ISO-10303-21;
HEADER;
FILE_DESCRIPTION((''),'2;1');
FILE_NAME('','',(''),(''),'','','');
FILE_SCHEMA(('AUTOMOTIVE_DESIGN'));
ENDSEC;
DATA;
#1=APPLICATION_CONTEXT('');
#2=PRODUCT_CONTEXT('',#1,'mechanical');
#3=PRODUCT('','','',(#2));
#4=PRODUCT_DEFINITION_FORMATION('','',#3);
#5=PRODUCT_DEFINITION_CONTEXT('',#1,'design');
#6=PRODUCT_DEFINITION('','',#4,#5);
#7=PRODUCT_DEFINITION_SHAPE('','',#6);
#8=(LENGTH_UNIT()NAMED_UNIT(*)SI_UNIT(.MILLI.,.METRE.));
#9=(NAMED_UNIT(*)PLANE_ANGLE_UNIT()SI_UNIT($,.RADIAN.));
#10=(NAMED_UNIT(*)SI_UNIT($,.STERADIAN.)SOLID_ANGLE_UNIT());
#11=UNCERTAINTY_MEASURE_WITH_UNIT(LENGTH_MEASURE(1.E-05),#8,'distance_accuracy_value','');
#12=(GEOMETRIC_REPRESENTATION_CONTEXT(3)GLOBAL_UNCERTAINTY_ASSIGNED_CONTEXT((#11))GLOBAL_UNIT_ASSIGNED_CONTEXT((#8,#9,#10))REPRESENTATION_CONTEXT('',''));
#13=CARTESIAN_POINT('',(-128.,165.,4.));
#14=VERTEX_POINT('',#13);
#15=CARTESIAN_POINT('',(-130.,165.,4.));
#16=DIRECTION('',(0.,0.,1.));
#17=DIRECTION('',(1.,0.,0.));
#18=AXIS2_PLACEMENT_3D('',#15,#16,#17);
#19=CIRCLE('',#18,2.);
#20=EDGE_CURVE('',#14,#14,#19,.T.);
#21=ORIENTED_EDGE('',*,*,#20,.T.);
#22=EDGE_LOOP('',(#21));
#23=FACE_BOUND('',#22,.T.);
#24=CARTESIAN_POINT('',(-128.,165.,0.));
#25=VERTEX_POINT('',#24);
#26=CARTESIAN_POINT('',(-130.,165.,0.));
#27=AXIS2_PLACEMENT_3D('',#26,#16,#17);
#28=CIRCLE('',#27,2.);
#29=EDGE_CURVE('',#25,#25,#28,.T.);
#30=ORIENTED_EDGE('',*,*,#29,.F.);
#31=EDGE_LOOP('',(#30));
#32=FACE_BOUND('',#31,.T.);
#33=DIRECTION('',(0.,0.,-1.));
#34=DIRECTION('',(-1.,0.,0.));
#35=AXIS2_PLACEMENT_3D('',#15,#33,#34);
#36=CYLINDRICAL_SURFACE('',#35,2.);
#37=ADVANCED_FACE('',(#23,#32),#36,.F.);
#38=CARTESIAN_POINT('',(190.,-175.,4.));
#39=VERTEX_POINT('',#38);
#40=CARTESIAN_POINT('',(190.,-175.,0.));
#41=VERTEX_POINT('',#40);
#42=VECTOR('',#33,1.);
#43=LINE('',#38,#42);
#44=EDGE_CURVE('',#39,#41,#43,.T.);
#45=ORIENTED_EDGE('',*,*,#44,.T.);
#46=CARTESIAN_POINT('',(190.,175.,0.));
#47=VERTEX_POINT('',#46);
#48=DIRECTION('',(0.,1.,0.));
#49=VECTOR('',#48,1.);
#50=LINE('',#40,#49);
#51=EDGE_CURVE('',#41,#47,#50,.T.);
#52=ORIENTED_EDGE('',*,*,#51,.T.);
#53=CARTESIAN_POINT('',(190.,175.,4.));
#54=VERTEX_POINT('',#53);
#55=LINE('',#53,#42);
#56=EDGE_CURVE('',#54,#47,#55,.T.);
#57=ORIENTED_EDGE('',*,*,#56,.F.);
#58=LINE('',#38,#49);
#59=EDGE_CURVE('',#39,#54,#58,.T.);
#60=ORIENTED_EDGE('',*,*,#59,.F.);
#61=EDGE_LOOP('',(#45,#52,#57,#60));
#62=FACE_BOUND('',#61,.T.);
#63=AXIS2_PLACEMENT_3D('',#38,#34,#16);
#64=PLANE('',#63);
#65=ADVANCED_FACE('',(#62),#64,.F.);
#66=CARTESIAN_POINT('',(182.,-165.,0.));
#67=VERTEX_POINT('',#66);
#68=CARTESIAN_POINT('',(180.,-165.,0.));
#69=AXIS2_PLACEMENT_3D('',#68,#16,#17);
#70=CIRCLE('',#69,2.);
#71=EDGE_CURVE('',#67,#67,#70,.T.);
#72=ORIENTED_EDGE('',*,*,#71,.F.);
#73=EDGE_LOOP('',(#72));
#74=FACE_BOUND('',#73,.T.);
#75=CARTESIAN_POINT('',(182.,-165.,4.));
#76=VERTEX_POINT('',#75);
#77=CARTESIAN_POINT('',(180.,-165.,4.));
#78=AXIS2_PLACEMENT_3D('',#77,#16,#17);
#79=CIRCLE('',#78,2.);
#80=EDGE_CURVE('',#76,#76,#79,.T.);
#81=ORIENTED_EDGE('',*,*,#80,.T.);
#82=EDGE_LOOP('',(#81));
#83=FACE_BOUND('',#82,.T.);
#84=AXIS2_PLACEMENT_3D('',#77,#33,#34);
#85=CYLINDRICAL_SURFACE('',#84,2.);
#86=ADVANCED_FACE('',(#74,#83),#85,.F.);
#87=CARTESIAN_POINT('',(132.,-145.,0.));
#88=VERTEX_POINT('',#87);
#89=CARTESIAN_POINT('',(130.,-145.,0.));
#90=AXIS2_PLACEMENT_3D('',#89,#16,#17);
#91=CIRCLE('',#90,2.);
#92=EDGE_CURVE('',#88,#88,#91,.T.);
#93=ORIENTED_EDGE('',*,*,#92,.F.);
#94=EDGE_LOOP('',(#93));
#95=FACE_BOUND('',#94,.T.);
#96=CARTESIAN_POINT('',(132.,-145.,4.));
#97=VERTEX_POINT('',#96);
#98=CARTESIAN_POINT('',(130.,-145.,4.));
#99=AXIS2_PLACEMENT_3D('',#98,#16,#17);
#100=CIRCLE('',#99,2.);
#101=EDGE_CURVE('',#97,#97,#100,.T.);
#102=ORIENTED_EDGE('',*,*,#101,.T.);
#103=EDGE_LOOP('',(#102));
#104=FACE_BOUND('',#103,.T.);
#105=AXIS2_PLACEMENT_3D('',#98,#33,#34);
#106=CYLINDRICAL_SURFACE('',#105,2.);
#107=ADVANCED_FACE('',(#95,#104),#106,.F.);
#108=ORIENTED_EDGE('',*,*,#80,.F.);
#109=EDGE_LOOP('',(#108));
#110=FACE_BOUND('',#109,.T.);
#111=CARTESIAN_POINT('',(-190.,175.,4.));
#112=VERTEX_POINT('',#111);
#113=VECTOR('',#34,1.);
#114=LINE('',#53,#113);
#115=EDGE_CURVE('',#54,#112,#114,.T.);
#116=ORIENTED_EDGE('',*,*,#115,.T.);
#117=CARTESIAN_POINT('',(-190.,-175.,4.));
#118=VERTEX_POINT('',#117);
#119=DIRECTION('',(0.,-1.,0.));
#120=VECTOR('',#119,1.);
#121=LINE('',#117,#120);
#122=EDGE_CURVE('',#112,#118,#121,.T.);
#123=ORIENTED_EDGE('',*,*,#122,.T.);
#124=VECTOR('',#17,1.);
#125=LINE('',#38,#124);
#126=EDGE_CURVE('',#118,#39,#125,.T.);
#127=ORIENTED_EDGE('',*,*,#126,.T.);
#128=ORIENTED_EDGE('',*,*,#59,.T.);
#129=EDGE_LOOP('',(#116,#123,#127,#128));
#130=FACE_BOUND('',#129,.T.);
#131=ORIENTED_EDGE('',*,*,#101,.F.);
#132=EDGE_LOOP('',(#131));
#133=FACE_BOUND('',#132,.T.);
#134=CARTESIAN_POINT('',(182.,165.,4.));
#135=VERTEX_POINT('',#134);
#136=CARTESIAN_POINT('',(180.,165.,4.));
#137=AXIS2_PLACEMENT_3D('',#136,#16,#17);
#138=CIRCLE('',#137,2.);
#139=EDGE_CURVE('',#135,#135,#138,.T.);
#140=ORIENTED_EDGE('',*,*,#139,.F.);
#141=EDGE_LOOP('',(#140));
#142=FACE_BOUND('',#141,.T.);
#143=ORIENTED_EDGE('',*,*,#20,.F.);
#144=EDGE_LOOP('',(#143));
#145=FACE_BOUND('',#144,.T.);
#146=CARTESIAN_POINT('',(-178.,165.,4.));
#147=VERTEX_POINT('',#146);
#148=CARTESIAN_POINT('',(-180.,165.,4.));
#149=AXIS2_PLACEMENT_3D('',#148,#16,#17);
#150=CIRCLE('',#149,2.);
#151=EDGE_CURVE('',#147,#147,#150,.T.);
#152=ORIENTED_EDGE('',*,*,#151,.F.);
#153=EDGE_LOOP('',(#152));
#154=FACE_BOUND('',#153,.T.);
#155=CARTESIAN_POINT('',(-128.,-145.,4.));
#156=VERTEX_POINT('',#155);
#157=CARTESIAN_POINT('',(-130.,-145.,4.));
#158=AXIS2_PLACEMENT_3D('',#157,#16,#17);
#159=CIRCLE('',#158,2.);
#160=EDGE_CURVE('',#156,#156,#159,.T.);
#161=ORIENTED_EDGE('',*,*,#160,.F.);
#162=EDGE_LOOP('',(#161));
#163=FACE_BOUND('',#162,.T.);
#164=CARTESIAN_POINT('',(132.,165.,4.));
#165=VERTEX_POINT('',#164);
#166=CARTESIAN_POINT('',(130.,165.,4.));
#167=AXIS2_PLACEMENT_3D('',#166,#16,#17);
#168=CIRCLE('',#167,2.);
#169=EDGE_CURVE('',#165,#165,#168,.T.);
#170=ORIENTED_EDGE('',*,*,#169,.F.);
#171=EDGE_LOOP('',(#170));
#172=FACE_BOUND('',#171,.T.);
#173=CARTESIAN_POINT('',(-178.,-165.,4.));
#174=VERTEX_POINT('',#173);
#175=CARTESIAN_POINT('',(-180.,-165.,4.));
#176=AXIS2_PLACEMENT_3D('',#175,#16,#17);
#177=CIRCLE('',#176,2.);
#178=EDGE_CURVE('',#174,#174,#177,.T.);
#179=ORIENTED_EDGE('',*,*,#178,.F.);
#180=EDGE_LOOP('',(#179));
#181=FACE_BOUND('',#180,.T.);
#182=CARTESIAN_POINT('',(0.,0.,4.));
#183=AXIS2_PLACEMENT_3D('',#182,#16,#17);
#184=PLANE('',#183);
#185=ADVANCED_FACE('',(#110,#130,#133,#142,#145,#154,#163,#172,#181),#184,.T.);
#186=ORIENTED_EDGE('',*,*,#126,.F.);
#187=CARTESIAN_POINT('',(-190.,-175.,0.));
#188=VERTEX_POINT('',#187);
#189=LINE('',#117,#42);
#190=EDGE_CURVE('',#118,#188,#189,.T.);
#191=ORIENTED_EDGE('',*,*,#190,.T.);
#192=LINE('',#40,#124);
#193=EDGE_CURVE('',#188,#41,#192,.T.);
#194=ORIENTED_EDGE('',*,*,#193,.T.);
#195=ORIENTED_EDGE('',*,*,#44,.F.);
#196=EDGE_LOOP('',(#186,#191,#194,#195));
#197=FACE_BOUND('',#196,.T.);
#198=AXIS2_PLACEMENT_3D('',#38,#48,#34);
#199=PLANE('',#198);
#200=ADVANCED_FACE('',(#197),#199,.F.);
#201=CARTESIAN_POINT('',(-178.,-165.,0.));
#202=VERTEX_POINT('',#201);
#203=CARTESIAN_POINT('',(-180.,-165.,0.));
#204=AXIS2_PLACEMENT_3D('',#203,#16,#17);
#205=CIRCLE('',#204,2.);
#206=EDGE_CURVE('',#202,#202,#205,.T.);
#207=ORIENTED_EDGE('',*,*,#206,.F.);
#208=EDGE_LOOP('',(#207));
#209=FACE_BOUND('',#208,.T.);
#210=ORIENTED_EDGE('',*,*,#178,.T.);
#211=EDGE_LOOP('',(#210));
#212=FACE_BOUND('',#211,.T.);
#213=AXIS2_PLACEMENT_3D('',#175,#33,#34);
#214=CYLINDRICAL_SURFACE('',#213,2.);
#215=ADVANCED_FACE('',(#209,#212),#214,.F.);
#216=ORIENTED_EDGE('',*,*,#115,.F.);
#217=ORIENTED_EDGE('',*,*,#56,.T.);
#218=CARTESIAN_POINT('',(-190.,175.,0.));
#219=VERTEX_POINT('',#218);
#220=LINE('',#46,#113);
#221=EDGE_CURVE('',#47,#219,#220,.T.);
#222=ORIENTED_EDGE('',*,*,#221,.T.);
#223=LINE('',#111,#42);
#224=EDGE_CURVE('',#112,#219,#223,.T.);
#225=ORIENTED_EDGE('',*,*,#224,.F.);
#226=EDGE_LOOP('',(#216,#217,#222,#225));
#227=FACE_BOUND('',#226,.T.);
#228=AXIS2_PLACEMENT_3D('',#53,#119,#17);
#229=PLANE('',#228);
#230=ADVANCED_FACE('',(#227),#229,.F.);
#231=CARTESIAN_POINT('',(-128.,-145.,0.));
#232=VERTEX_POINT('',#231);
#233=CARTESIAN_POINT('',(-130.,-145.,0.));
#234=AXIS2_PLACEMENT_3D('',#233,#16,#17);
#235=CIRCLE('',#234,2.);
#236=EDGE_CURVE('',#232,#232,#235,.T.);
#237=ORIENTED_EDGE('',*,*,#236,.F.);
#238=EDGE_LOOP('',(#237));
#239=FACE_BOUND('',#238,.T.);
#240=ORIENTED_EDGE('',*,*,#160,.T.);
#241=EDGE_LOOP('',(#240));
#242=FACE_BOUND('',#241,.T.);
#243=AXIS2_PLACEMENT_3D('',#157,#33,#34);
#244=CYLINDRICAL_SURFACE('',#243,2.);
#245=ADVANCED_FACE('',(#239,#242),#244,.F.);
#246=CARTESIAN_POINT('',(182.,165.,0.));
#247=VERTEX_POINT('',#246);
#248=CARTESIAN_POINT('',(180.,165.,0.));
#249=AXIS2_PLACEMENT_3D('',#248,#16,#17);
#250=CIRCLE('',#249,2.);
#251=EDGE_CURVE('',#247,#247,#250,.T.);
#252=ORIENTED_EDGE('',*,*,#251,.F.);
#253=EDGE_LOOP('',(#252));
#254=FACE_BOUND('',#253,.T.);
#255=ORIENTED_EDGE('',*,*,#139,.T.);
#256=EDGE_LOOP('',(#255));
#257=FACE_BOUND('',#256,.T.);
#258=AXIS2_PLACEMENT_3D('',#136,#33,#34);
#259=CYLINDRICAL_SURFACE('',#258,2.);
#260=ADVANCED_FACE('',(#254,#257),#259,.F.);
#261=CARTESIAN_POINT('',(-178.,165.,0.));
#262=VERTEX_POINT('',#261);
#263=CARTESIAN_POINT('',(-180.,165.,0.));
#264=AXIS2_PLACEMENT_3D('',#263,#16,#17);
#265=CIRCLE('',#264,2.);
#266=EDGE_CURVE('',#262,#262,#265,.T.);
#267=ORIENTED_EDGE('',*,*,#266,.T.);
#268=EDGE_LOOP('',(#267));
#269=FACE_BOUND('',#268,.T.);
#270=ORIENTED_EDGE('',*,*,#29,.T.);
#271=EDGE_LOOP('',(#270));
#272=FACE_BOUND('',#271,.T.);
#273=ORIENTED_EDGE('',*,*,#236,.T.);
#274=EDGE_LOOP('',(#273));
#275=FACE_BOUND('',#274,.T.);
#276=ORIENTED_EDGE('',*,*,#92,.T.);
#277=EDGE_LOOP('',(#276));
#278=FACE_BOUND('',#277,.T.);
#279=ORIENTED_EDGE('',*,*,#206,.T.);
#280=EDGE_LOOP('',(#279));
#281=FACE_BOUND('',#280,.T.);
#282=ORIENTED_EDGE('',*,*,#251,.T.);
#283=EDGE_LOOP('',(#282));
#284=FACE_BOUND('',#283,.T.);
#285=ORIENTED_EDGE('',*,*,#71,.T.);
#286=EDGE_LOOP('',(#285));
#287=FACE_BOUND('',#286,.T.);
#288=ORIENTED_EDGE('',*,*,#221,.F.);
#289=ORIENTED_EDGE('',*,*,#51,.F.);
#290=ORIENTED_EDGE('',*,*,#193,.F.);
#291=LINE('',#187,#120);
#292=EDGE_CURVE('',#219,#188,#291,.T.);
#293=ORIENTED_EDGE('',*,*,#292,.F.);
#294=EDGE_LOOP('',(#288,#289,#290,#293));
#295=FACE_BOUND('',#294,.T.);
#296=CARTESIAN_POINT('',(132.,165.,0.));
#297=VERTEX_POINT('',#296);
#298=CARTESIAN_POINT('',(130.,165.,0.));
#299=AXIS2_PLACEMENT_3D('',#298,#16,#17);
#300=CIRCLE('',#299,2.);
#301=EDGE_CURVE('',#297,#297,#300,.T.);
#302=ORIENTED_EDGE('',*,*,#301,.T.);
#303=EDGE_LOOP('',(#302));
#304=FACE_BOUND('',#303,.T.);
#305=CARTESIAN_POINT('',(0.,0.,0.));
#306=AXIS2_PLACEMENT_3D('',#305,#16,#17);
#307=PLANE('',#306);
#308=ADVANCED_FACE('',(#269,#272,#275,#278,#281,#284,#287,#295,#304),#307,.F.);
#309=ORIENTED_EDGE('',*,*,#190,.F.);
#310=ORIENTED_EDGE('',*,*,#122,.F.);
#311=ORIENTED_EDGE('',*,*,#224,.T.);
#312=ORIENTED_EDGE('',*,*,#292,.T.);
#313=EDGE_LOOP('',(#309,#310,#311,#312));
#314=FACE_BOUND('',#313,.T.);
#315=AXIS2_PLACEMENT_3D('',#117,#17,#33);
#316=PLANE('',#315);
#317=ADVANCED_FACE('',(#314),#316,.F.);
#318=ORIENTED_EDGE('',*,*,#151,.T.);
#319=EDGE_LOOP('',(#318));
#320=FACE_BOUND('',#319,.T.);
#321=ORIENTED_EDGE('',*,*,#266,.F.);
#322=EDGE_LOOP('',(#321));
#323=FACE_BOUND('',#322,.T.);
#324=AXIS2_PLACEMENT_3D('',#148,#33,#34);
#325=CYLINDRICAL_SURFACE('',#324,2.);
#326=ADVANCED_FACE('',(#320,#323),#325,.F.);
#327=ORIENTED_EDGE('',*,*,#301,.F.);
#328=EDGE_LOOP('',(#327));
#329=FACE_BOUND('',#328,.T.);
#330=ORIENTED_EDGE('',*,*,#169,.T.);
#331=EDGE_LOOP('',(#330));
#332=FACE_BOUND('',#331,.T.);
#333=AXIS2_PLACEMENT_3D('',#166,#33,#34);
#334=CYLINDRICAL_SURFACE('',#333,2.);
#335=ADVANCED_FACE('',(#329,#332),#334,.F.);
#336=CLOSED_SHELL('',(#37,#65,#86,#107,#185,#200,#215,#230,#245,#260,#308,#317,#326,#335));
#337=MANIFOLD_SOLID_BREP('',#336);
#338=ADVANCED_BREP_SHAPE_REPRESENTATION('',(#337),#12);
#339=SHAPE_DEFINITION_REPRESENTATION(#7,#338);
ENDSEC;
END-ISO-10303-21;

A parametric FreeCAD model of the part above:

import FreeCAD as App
import Part
import Sketcher

doc = App.newDocument("Part")
body = doc.addObject("PartDesign::Body", "Body")

sketch1 = doc.addObject("Sketcher::SketchObject", "Sketch")
body.addObject(sketch1)
sketch1.AttachmentSupport = (doc.XY_Plane, [""])
sketch1.MapMode = "FlatFace"
sketch1.addGeometry([
    Part.LineSegment(App.Vector(-190, 175, 0), App.Vector(-190, -175, 0)),
    Part.LineSegment(App.Vector(-190, -175, 0), App.Vector(190, -175, 0)),
    Part.LineSegment(App.Vector(190, -175, 0), App.Vector(190, 175, 0)),
    Part.LineSegment(App.Vector(190, 175, 0), App.Vector(-190, 175, 0)),
    Part.Circle(App.Vector(-180, -165, 0), App.Vector(0, 0, 1), 2),
    Part.Circle(App.Vector(-130, -145, 0), App.Vector(0, 0, 1), 2),
    Part.Circle(App.Vector(130, -145, 0), App.Vector(0, 0, 1), 2),
    Part.Circle(App.Vector(180, -165, 0), App.Vector(0, 0, 1), 2),
    Part.Circle(App.Vector(-180, 165, 0), App.Vector(0, 0, 1), 2),
    Part.Circle(App.Vector(-130, 165, 0), App.Vector(0, 0, 1), 2),
    Part.Circle(App.Vector(130, 165, 0), App.Vector(0, 0, 1), 2),
    Part.Circle(App.Vector(180, 165, 0), App.Vector(0, 0, 1), 2),
], False)
sketch1.addConstraint([
    Sketcher.Constraint("Coincident", 0, 2, 1, 1),
    Sketcher.Constraint("Coincident", 1, 2, 2, 1),
    Sketcher.Constraint("Coincident", 2, 2, 3, 1),
    Sketcher.Constraint("Coincident", 3, 2, 0, 1),
    Sketcher.Constraint("Vertical", 0),
    Sketcher.Constraint("Horizontal", 1),
    Sketcher.Constraint("Vertical", 2),
    Sketcher.Constraint("Horizontal", 3),
    Sketcher.Constraint("Equal", 4, 5),
    Sketcher.Constraint("Equal", 5, 6),
    Sketcher.Constraint("Equal", 6, 7),
    Sketcher.Constraint("Equal", 7, 8),
    Sketcher.Constraint("Equal", 8, 9),
    Sketcher.Constraint("Equal", 9, 10),
    Sketcher.Constraint("Equal", 10, 11),
    Sketcher.Constraint("Symmetric", 7, 3, 8, 3, -1, 1),
    Sketcher.Constraint("Symmetric", 4, 3, 11, 3, -1, 1),
    Sketcher.Constraint("Symmetric", 0, 2, 2, 2, -1, 1),
    Sketcher.Constraint("Symmetric", 5, 3, 6, 3, -2),
    Sketcher.Constraint("Symmetric", 4, 3, 7, 3, -2),
    Sketcher.Constraint("Symmetric", 9, 3, 10, 3, -2),
    Sketcher.Constraint("Horizontal", 8, 3, 9, 3),
    Sketcher.Constraint("Vertical", 5, 3, 9, 3),
    Sketcher.Constraint("Diameter", 4, 4.0),
    Sketcher.Constraint("DistanceX", 1, 1, 1, 2, 380.0),
    Sketcher.Constraint("DistanceY", 0, 2, 0, 1, 350.0),
    Sketcher.Constraint("DistanceX", 4, 3, -1, 1, 180.0),
    Sketcher.Constraint("DistanceY", 4, 3, -1, 1, 165.0),
    Sketcher.Constraint("DistanceX", 5, 3, -1, 1, 130.0),
    Sketcher.Constraint("DistanceY", 5, 3, -1, 1, 145.0),
])
pad1 = doc.addObject("PartDesign::Pad", "Pad")
body.addObject(pad1)
pad1.Profile = sketch1
pad1.Length = 4

doc.recompute()
